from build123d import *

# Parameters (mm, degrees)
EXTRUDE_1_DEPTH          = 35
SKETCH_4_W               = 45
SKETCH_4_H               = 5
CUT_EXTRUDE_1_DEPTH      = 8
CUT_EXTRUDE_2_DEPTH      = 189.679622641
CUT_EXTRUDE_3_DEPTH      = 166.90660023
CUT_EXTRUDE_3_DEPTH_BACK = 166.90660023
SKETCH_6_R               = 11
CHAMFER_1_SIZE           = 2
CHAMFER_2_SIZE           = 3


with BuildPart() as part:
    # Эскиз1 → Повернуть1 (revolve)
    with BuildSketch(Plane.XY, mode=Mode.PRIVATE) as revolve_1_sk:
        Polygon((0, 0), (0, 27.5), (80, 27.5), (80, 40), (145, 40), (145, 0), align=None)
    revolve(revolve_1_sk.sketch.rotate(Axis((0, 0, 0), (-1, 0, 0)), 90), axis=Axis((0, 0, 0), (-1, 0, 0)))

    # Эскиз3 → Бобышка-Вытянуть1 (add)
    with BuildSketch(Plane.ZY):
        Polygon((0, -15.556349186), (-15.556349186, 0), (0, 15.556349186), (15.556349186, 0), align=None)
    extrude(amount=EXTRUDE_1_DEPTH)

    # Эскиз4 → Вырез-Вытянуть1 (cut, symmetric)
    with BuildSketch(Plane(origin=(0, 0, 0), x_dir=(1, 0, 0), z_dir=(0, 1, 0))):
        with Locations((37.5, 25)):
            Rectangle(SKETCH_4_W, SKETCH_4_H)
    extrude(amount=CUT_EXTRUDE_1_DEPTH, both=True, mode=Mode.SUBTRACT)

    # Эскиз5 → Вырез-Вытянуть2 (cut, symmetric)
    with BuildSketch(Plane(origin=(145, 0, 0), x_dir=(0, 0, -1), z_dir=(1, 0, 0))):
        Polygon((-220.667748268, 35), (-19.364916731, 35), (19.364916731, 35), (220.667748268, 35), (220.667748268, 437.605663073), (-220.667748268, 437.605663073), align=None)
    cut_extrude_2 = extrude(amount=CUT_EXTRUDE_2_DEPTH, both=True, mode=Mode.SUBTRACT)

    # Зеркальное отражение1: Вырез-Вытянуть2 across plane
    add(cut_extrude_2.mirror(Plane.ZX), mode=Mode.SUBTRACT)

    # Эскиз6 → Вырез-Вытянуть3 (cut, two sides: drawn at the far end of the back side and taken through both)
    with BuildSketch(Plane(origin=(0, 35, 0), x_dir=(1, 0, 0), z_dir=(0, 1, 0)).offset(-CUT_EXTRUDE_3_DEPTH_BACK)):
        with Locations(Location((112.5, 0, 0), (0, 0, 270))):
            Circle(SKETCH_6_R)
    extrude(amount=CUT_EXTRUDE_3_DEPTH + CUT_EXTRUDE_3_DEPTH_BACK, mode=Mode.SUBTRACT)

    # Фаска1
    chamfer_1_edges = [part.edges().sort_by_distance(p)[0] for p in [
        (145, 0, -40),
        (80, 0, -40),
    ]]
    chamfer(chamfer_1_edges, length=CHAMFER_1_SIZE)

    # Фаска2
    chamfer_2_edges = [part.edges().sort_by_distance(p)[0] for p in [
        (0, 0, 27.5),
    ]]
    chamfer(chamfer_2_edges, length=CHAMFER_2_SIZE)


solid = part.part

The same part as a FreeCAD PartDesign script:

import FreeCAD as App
import Part
import Sketcher
from FreeCAD import Vector


def edges_at(feature, points):
    """Names of the edges that pass closest to the given points."""
    edges = feature.Shape.Edges
    near = lambda p: min(range(len(edges)), key=lambda i: edges[i].distToShape(Part.Vertex(*p))[0])
    return sorted({f"Edge{near(p) + 1}" for p in points})


def add_polygon(sketch, points):
    """Adds a closed chain of lines whose ends are joined by coincident constraints."""
    first, n = sketch.GeometryCount, len(points)
    for a, b in zip(points, points[1:] + points[:1]):
        sketch.addGeometry(Part.LineSegment(App.Vector(*a, 0), App.Vector(*b, 0)), False)
    for i in range(n):
        sketch.addConstraint(Sketcher.Constraint("Coincident", first + i, 2, first + (i + 1) % n, 1))

doc = App.newDocument("Part")
body = doc.addObject("PartDesign::Body", "Body")

sketch1 = doc.addObject("Sketcher::SketchObject", "Sketch")
body.addObject(sketch1)
sketch1.AttachmentSupport = (doc.XY_Plane, [""])
sketch1.MapMode = "FlatFace"
add_polygon(sketch1, [(0, 27.5), (0, 0), (145, 0), (145, 40), (80, 40), (80, 27.5)])
sketch1.addConstraint(Sketcher.Constraint("Vertical", 0))
sketch1.addConstraint(Sketcher.Constraint("Horizontal", 1))
sketch1.addConstraint(Sketcher.Constraint("Vertical", 2))
sketch1.addConstraint(Sketcher.Constraint("Horizontal", 3))
sketch1.addConstraint(Sketcher.Constraint("Vertical", 4))
sketch1.addConstraint(Sketcher.Constraint("Horizontal", 5))
sketch1.addConstraint(Sketcher.Constraint("Coincident", 0, 2, -1, 1))
sketch1.addConstraint(Sketcher.Constraint("DistanceX", 1, 1, 1, 2, 145.0))
sketch1.addConstraint(Sketcher.Constraint("DistanceX", 3, 2, 3, 1, 65.0))
sketch1.addConstraint(Sketcher.Constraint("DistanceY", 2, 1, 2, 2, 40.0))
sketch1.addConstraint(Sketcher.Constraint("DistanceY", 0, 2, 0, 1, 27.5))
revolution = doc.addObject("PartDesign::Revolution", "Revolution")
body.addObject(revolution)
revolution.Profile = sketch1
revolution.ReferenceAxis = (sketch1, ["H_Axis"])
revolution.Angle = 360

sketch2 = doc.addObject("Sketcher::SketchObject", "Sketch001")
body.addObject(sketch2)
sketch2.AttachmentSupport = (doc.YZ_Plane, [""])
sketch2.MapMode = "FlatFace"
add_polygon(sketch2, [(0, -15.556349), (-15.556349, 0), (0, 15.556349), (15.556349, 0)])
sketch2.addConstraint(Sketcher.Constraint("Symmetric", 0, 2, 2, 2, -1, 1))
sketch2.addConstraint(Sketcher.Constraint("Symmetric", 1, 2, 3, 2, -1, 1))
sketch2.addConstraint(Sketcher.Constraint("PointOnObject", 0, 2, -1))
sketch2.addConstraint(Sketcher.Constraint("PointOnObject", 1, 2, -2))
sketch2.addConstraint(Sketcher.Constraint("Perpendicular", 0, 1))
sketch2.addConstraint(Sketcher.Constraint("Distance", 0, 22.0))
pad1 = doc.addObject("PartDesign::Pad", "Pad")
body.addObject(pad1)
pad1.Profile = sketch2
pad1.Length = 35
pad1.Reversed = True

sketch3 = doc.addObject("Sketcher::SketchObject", "Sketch002")
body.addObject(sketch3)
sketch3.AttachmentSupport = (doc.XZ_Plane, [""])
sketch3.MapMode = "FlatFace"
add_polygon(sketch3, [(15, -27.5), (15, -22.5), (60, -22.5), (60, -27.5)])
sketch3.addConstraint(Sketcher.Constraint("Vertical", 0))
sketch3.addConstraint(Sketcher.Constraint("Horizontal", 1))
sketch3.addConstraint(Sketcher.Constraint("Vertical", 2))
sketch3.addConstraint(Sketcher.Constraint("Horizontal", 3))
sketch3.addConstraint(Sketcher.Constraint("DistanceX", 1, 1, 1, 2, 45.0))
sketch3.addConstraint(Sketcher.Constraint("DistanceY", 0, 1, 0, 2, 5.0))
sketch3.addConstraint(Sketcher.Constraint("DistanceX", -1, 1, 0, 2, 15.0))
sketch3.addConstraint(Sketcher.Constraint("DistanceY", 0, 2, -1, 1, 22.5))
pocket1 = doc.addObject("PartDesign::Pocket", "Pocket")
body.addObject(pocket1)
pocket1.Profile = sketch3
pocket1.Length = 16
pocket1.Midplane = True

sketch4 = doc.addObject("Sketcher::SketchObject", "Sketch003")
body.addObject(sketch4)
sketch4.AttachmentSupport = (doc.YZ_Plane, [""])
sketch4.MapMode = "FlatFace"
sketch4.AttachmentOffset = App.Placement(Vector(0, 0, 145), App.Rotation())
add_polygon(sketch4, [(35, 220.667748), (35, -220.667748), (437.605663, -220.667748), (437.605663, 220.667748)])
sketch4.addConstraint(Sketcher.Constraint("Vertical", 0))
sketch4.addConstraint(Sketcher.Constraint("Horizontal", 1))
sketch4.addConstraint(Sketcher.Constraint("Vertical", 2))
sketch4.addConstraint(Sketcher.Constraint("Horizontal", 3))
sketch4.addConstraint(Sketcher.Constraint("DistanceX", -1, 1, 0, 2, 35.0))
sketch4.addConstraint(Sketcher.Constraint("DistanceX", 1, 1, 1, 2, 402.605663))
sketch4.addConstraint(Sketcher.Constraint("DistanceY", 0, 2, 0, 1, 441.335497))
sketch4.addConstraint(Sketcher.Constraint("DistanceY", 0, 2, -1, 1, 220.667748))
pocket2 = doc.addObject("PartDesign::Pocket", "Pocket001")
body.addObject(pocket2)
pocket2.Profile = sketch4
pocket2.Length = 379.359245
pocket2.Midplane = True
doc.recompute()

mirrored = doc.addObject("PartDesign::Mirrored", "Mirrored")
body.addObject(mirrored)
mirrored.Originals = [pocket2]
mirrored.MirrorPlane = (doc.XZ_Plane, [""])
body.Tip = mirrored

sketch5 = doc.addObject("Sketcher::SketchObject", "Sketch004")
body.addObject(sketch5)
sketch5.AttachmentSupport = (doc.XZ_Plane, [""])
sketch5.MapMode = "FlatFace"
sketch5.AttachmentOffset = App.Placement(Vector(0, 0, -35), App.Rotation())
sketch5.addGeometry(Part.Circle(Vector(112.5, 0, 0), Vector(0, 0, 1), 11), False)
sketch5.addConstraint(Sketcher.Constraint("PointOnObject", 0, 3, -1))
sketch5.addConstraint(Sketcher.Constraint("Diameter", 0, 22.0))
sketch5.addConstraint(Sketcher.Constraint("DistanceX", -1, 1, 0, 3, 112.5))
pocket3 = doc.addObject("PartDesign::Pocket", "Pocket002")
body.addObject(pocket3)
pocket3.Profile = sketch5
pocket3.Type = "ThroughAll"
pocket3.Midplane = True
doc.recompute()

chamfer = doc.addObject("PartDesign::Chamfer", "Chamfer")
body.addObject(chamfer)
chamfer.Base = (pocket3, edges_at(pocket3, [(145, 0, -40), (80, 0, -40)]))
chamfer.Size = 2
doc.recompute()

chamfer2 = doc.addObject("PartDesign::Chamfer", "Chamfer001")
body.addObject(chamfer2)
chamfer2.Base = (chamfer, edges_at(chamfer, [(0, 0, 27.5)]))
chamfer2.Size = 3

doc.recompute()
